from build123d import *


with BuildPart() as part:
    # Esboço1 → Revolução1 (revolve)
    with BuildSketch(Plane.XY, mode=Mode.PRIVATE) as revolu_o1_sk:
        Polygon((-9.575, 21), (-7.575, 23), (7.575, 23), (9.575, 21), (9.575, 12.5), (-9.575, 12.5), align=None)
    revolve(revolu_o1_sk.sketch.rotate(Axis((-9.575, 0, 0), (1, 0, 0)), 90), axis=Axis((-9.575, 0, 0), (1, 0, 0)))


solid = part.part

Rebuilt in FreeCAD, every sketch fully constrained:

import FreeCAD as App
import Part
import Sketcher

V = App.Vector
Q = App.Units.Quantity

doc = App.newDocument("Part")
body = doc.addObject("PartDesign::Body", "Body")

sketch1 = body.newObject("Sketcher::SketchObject", "Sketch")
sketch1.AttachmentSupport = (doc.getObject("XY_Plane"), [""])
sketch1.MapMode = "FlatFace"
sketch1.addGeometry([
    Part.LineSegment(V(-7.575, 23, 0), V(-9.575, 21, 0)),
    Part.LineSegment(V(-9.575, 21, 0), V(-9.575, 12.5, 0)),
    Part.LineSegment(V(-9.575, 12.5, 0), V(9.575, 12.5, 0)),
    Part.LineSegment(V(9.575, 12.5, 0), V(9.575, 21, 0)),
    Part.LineSegment(V(9.575, 21, 0), V(7.575, 23, 0)),
    Part.LineSegment(V(7.575, 23, 0), V(-7.575, 23, 0)),
], False)
sketch1.addConstraint([
    Sketcher.Constraint("Coincident", 0, 2, 1, 1),
    Sketcher.Constraint("Coincident", 1, 2, 2, 1),
    Sketcher.Constraint("Coincident", 2, 2, 3, 1),
    Sketcher.Constraint("Coincident", 3, 2, 4, 1),
    Sketcher.Constraint("Coincident", 4, 2, 5, 1),
    Sketcher.Constraint("Coincident", 5, 2, 0, 1),
    Sketcher.Constraint("Vertical", 1),
    Sketcher.Constraint("Horizontal", 2),
    Sketcher.Constraint("Vertical", 3),
    Sketcher.Constraint("Horizontal", 5),
    Sketcher.Constraint("Symmetric", 0, 2, 3, 2, -2),
    Sketcher.Constraint("Perpendicular", 0, 4),
    Sketcher.Constraint("Equal", 0, 4),
    Sketcher.Constraint("DistanceY", 1, 2, 1, 1, Q("8.5 mm")),
    Sketcher.Constraint("DistanceY", -1, 1, 0, 2, Q("21 mm")),
    Sketcher.Constraint("DistanceY", -1, 1, 4, 2, Q("23 mm")),
    Sketcher.Constraint("DistanceX", 2, 1, 2, 2, Q("19.15 mm")),
])
revolution = body.newObject("PartDesign::Revolution", "Revolution")
revolution.Profile = sketch1
revolution.ReferenceAxis = (sketch1, ["H_Axis"])
revolution.Angle = 360

doc.recompute()
